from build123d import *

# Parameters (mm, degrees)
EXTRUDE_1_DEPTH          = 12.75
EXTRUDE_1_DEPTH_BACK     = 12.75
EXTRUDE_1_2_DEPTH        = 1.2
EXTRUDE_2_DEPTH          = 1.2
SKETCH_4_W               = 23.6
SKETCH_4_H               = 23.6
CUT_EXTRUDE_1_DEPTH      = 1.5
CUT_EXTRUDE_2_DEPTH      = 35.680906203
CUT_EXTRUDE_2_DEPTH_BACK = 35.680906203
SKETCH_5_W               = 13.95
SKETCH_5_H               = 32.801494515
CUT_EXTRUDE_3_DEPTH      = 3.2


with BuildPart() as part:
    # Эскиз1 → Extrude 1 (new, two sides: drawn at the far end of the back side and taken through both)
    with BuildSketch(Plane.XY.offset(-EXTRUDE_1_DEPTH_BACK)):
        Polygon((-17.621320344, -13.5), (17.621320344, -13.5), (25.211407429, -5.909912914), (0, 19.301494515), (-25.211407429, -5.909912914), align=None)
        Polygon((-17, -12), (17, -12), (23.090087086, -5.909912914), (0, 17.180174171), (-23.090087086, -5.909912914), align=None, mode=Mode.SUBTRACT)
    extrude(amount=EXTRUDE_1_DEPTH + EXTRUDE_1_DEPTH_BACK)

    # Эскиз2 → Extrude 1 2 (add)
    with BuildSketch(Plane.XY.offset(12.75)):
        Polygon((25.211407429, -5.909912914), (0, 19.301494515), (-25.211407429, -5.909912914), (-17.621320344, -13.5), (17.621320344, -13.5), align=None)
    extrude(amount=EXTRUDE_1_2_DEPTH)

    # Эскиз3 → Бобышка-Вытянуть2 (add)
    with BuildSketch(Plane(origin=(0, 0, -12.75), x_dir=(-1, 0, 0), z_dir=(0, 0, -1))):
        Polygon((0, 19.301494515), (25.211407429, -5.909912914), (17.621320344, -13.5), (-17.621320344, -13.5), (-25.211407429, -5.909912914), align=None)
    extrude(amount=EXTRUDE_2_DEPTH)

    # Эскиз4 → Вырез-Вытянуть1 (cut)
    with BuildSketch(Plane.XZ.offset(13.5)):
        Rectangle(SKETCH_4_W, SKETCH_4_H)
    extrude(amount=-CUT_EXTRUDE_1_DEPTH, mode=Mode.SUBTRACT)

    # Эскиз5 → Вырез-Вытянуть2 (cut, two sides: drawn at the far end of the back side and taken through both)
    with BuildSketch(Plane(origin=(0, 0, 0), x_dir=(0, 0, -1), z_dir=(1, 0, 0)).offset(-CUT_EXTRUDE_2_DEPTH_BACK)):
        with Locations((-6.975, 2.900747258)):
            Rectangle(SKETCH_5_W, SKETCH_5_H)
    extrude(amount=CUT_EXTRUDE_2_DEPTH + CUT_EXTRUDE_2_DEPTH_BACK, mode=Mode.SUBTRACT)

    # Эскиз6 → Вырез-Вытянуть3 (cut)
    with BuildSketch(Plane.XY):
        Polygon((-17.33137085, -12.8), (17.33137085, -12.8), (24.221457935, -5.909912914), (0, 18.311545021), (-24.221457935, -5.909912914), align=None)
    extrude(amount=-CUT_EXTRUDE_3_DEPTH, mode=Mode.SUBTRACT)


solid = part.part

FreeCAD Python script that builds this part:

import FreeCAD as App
import Part
import Sketcher

doc = App.newDocument("Part")
body = doc.addObject("PartDesign::Body", "Body")

# Sketch on XY plane
sketch1 = doc.addObject("Sketcher::SketchObject", "Sketch")
body.addObject(sketch1)
sketch1.AttachmentSupport = (doc.XY_Plane, [""])
sketch1.MapMode = "FlatFace"
sketch1.addGeometry(Part.LineSegment(App.Vector(-17.62132, -13.5, 0), App.Vector(17.62132, -13.5, 0)), False)
sketch1.addGeometry(Part.LineSegment(App.Vector(17.62132, -13.5, 0), App.Vector(25.211407, -5.909913, 0)), False)
sketch1.addGeometry(Part.LineSegment(App.Vector(25.211407, -5.909913, 0), App.Vector(0, 19.301495, 0)), False)
sketch1.addGeometry(Part.LineSegment(App.Vector(0, 19.301495, 0), App.Vector(-25.211407, -5.909913, 0)), False)
sketch1.addGeometry(Part.LineSegment(App.Vector(-25.211407, -5.909913, 0), App.Vector(-17.62132, -13.5, 0)), False)
sketch1.addGeometry(Part.LineSegment(App.Vector(17, -12, 0), App.Vector(-17, -12, 0)), False)
sketch1.addGeometry(Part.LineSegment(App.Vector(-17, -12, 0), App.Vector(-23.090087, -5.909913, 0)), False)
sketch1.addGeometry(Part.LineSegment(App.Vector(-23.090087, -5.909913, 0), App.Vector(0, 17.180174, 0)), False)
sketch1.addGeometry(Part.LineSegment(App.Vector(0, 17.180174, 0), App.Vector(23.090087, -5.909913, 0)), False)
sketch1.addGeometry(Part.LineSegment(App.Vector(23.090087, -5.909913, 0), App.Vector(17, -12, 0)), False)
sketch1.addConstraint(Sketcher.Constraint("Coincident", 0, 2, 1, 1))
sketch1.addConstraint(Sketcher.Constraint("Coincident", 1, 2, 2, 1))
sketch1.addConstraint(Sketcher.Constraint("Coincident", 2, 2, 3, 1))
sketch1.addConstraint(Sketcher.Constraint("Coincident", 3, 2, 4, 1))
sketch1.addConstraint(Sketcher.Constraint("Coincident", 4, 2, 0, 1))
sketch1.addConstraint(Sketcher.Constraint("Coincident", 5, 2, 6, 1))
sketch1.addConstraint(Sketcher.Constraint("Coincident", 6, 2, 7, 1))
sketch1.addConstraint(Sketcher.Constraint("Coincident", 7, 2, 8, 1))
sketch1.addConstraint(Sketcher.Constraint("Coincident", 8, 2, 9, 1))
sketch1.addConstraint(Sketcher.Constraint("Coincident", 9, 2, 5, 1))
sketch1.addConstraint(Sketcher.Constraint("Horizontal", 0))
sketch1.addConstraint(Sketcher.Constraint("Horizontal", 5))
sketch1.addConstraint(Sketcher.Constraint("Symmetric", 1, 2, 3, 2, -2))
sketch1.addConstraint(Sketcher.Constraint("Symmetric", 6, 2, 8, 2, -2))
sketch1.addConstraint(Sketcher.Constraint("PointOnObject", 2, 2, -2))
sketch1.addConstraint(Sketcher.Constraint("PointOnObject", 7, 2, -2))
sketch1.addConstraint(Sketcher.Constraint("Perpendicular", 1, 2))
sketch1.addConstraint(Sketcher.Constraint("Perpendicular", 2, 3))
sketch1.addConstraint(Sketcher.Constraint("Perpendicular", 3, 4))
sketch1.addConstraint(Sketcher.Constraint("Parallel", 4, 6))
sketch1.addConstraint(Sketcher.Constraint("Perpendicular", 6, 7))
sketch1.addConstraint(Sketcher.Constraint("Perpendicular", 8, 9))
sketch1.addConstraint(Sketcher.Constraint("Horizontal", 3, 2, 6, 2))
sketch1.addConstraint(Sketcher.Constraint("DistanceX", 5, 2, 5, 1, 34.0))
sketch1.addConstraint(Sketcher.Constraint("DistanceY", 5, 2, -1, 1, 12.0))
sketch1.addConstraint(Sketcher.Constraint("DistanceY", 0, 2, -1, 1, 13.5))
sketch1.addConstraint(Sketcher.Constraint("DistanceX", 0, 1, 0, 2, 35.242641))
sketch1.addConstraint(Sketcher.Constraint("Distance", 1, 10.734004))
pad1 = doc.addObject("PartDesign::Pad", "Pad")
body.addObject(pad1)
pad1.Profile = sketch1
pad1.Type = "TwoLengths"
pad1.Length = 12.75
pad1.Length2 = 12.75

# Sketch on XY plane
sketch2 = doc.addObject("Sketcher::SketchObject", "Sketch001")
body.addObject(sketch2)
sketch2.AttachmentSupport = (doc.XY_Plane, [""])
sketch2.MapMode = "FlatFace"
sketch2.AttachmentOffset = App.Placement(App.Vector(0, 0, 12.75), App.Rotation())
sketch2.addGeometry(Part.LineSegment(App.Vector(25.211407, -5.909913, 0), App.Vector(0, 19.301495, 0)), False)
sketch2.addGeometry(Part.LineSegment(App.Vector(0, 19.301495, 0), App.Vector(-25.211407, -5.909913, 0)), False)
sketch2.addGeometry(Part.LineSegment(App.Vector(-25.211407, -5.909913, 0), App.Vector(-17.62132, -13.5, 0)), False)
sketch2.addGeometry(Part.LineSegment(App.Vector(-17.62132, -13.5, 0), App.Vector(17.62132, -13.5, 0)), False)
sketch2.addGeometry(Part.LineSegment(App.Vector(17.62132, -13.5, 0), App.Vector(25.211407, -5.909913, 0)), False)
sketch2.addConstraint(Sketcher.Constraint("Coincident", 0, 2, 1, 1))
sketch2.addConstraint(Sketcher.Constraint("Coincident", 1, 2, 2, 1))
sketch2.addConstraint(Sketcher.Constraint("Coincident", 2, 2, 3, 1))
sketch2.addConstraint(Sketcher.Constraint("Coincident", 3, 2, 4, 1))
sketch2.addConstraint(Sketcher.Constraint("Coincident", 4, 2, 0, 1))
sketch2.addConstraint(Sketcher.Constraint("Horizontal", 3))
sketch2.addConstraint(Sketcher.Constraint("Symmetric", 1, 2, 4, 2, -2))
sketch2.addConstraint(Sketcher.Constraint("PointOnObject", 0, 2, -2))
sketch2.addConstraint(Sketcher.Constraint("Perpendicular", 0, 1))
sketch2.addConstraint(Sketcher.Constraint("Perpendicular", 1, 2))
sketch2.addConstraint(Sketcher.Constraint("Perpendicular", 2, 4))
sketch2.addConstraint(Sketcher.Constraint("DistanceY", 2, 2, -1, 1, 13.5))
sketch2.addConstraint(Sketcher.Constraint("DistanceX", 3, 1, 3, 2, 35.242641))
sketch2.addConstraint(Sketcher.Constraint("Distance", 0, 35.654314))
pad2 = doc.addObject("PartDesign::Pad", "Pad001")
body.addObject(pad2)
pad2.Profile = sketch2
pad2.Length = 1.2

# Sketch on XY plane
sketch3 = doc.addObject("Sketcher::SketchObject", "Sketch002")
body.addObject(sketch3)
sketch3.AttachmentSupport = (doc.XY_Plane, [""])
sketch3.MapMode = "FlatFace"
sketch3.AttachmentOffset = App.Placement(App.Vector(0, 0, -12.75), App.Rotation())
sketch3.addGeometry(Part.LineSegment(App.Vector(-25.211407, -5.909913, 0), App.Vector(0, 19.301495, 0)), False)
sketch3.addGeometry(Part.LineSegment(App.Vector(0, 19.301495, 0), App.Vector(25.211407, -5.909913, 0)), False)
sketch3.addGeometry(Part.LineSegment(App.Vector(25.211407, -5.909913, 0), App.Vector(17.62132, -13.5, 0)), False)
sketch3.addGeometry(Part.LineSegment(App.Vector(17.62132, -13.5, 0), App.Vector(-17.62132, -13.5, 0)), False)
sketch3.addGeometry(Part.LineSegment(App.Vector(-17.62132, -13.5, 0), App.Vector(-25.211407, -5.909913, 0)), False)
sketch3.addConstraint(Sketcher.Constraint("Coincident", 0, 2, 1, 1))
sketch3.addConstraint(Sketcher.Constraint("Coincident", 1, 2, 2, 1))
sketch3.addConstraint(Sketcher.Constraint("Coincident", 2, 2, 3, 1))
sketch3.addConstraint(Sketcher.Constraint("Coincident", 3, 2, 4, 1))
sketch3.addConstraint(Sketcher.Constraint("Coincident", 4, 2, 0, 1))
sketch3.addConstraint(Sketcher.Constraint("Horizontal", 3))
sketch3.addConstraint(Sketcher.Constraint("Symmetric", 1, 2, 4, 2, -2))
sketch3.addConstraint(Sketcher.Constraint("PointOnObject", 0, 2, -2))
sketch3.addConstraint(Sketcher.Constraint("Perpendicular", 0, 1))
sketch3.addConstraint(Sketcher.Constraint("Perpendicular", 1, 2))
sketch3.addConstraint(Sketcher.Constraint("Perpendicular", 2, 4))
sketch3.addConstraint(Sketcher.Constraint("DistanceY", 2, 2, -1, 1, 13.5))
sketch3.addConstraint(Sketcher.Constraint("DistanceX", 3, 2, 3, 1, 35.242641))
sketch3.addConstraint(Sketcher.Constraint("Distance", 0, 35.654314))
pad3 = doc.addObject("PartDesign::Pad", "Pad002")
body.addObject(pad3)
pad3.Profile = sketch3
pad3.Length = 1.2
pad3.Reversed = True

# Sketch on XZ plane
sketch4 = doc.addObject("Sketcher::SketchObject", "Sketch003")
body.addObject(sketch4)
sketch4.AttachmentSupport = (doc.XZ_Plane, [""])
sketch4.MapMode = "FlatFace"
sketch4.AttachmentOffset = App.Placement(App.Vector(0, 0, 13.5), App.Rotation())
sketch4.addGeometry(Part.LineSegment(App.Vector(-11.8, 11.8, 0), App.Vector(-11.8, -11.8, 0)), False)
sketch4.addGeometry(Part.LineSegment(App.Vector(-11.8, -11.8, 0), App.Vector(11.8, -11.8, 0)), False)
sketch4.addGeometry(Part.LineSegment(App.Vector(11.8, -11.8, 0), App.Vector(11.8, 11.8, 0)), False)
sketch4.addGeometry(Part.LineSegment(App.Vector(11.8, 11.8, 0), App.Vector(-11.8, 11.8, 0)), False)
sketch4.addConstraint(Sketcher.Constraint("Coincident", 0, 2, 1, 1))
sketch4.addConstraint(Sketcher.Constraint("Coincident", 1, 2, 2, 1))
sketch4.addConstraint(Sketcher.Constraint("Coincident", 2, 2, 3, 1))
sketch4.addConstraint(Sketcher.Constraint("Coincident", 3, 2, 0, 1))
sketch4.addConstraint(Sketcher.Constraint("Vertical", 0))
sketch4.addConstraint(Sketcher.Constraint("Horizontal", 1))
sketch4.addConstraint(Sketcher.Constraint("Vertical", 2))
sketch4.addConstraint(Sketcher.Constraint("Horizontal", 3))
sketch4.addConstraint(Sketcher.Constraint("Symmetric", 0, 2, 2, 2, -1, 1))
sketch4.addConstraint(Sketcher.Constraint("Equal", 3, 0))
sketch4.addConstraint(Sketcher.Constraint("DistanceX", 1, 1, 1, 2, 23.6))
pocket1 = doc.addObject("PartDesign::Pocket", "Pocket")
body.addObject(pocket1)
pocket1.Profile = sketch4
pocket1.Length = 1.5

# Sketch on YZ plane
sketch5 = doc.addObject("Sketcher::SketchObject", "Sketch004")
body.addObject(sketch5)
sketch5.AttachmentSupport = (doc.YZ_Plane, [""])
sketch5.MapMode = "FlatFace"
sketch5.addGeometry(Part.LineSegment(App.Vector(19.301495, 13.95, 0), App.Vector(-13.5, 13.95, 0)), False)
sketch5.addGeometry(Part.LineSegment(App.Vector(-13.5, 13.95, 0), App.Vector(-13.5, 0, 0)), False)
sketch5.addGeometry(Part.LineSegment(App.Vector(-13.5, 0, 0), App.Vector(19.301495, 0, 0)), False)
sketch5.addGeometry(Part.LineSegment(App.Vector(19.301495, 0, 0), App.Vector(19.301495, 13.95, 0)), False)
sketch5.addConstraint(Sketcher.Constraint("Coincident", 0, 2, 1, 1))
sketch5.addConstraint(Sketcher.Constraint("Coincident", 1, 2, 2, 1))
sketch5.addConstraint(Sketcher.Constraint("Coincident", 2, 2, 3, 1))
sketch5.addConstraint(Sketcher.Constraint("Coincident", 3, 2, 0, 1))
sketch5.addConstraint(Sketcher.Constraint("Horizontal", 0))
sketch5.addConstraint(Sketcher.Constraint("Vertical", 1))
sketch5.addConstraint(Sketcher.Constraint("Horizontal", 2))
sketch5.addConstraint(Sketcher.Constraint("Vertical", 3))
sketch5.addConstraint(Sketcher.Constraint("PointOnObject", 1, 2, -1))
sketch5.addConstraint(Sketcher.Constraint("DistanceY", 1, 2, 1, 1, 13.95))
sketch5.addConstraint(Sketcher.Constraint("DistanceX", 0, 2, -1, 1, 13.5))
sketch5.addConstraint(Sketcher.Constraint("DistanceX", 0, 2, 0, 1, 32.801495))
pocket2 = doc.addObject("PartDesign::Pocket", "Pocket001")
body.addObject(pocket2)
pocket2.Profile = sketch5
pocket2.Type = "ThroughAll"
pocket2.Midplane = True

# Sketch on XY plane
sketch6 = doc.addObject("Sketcher::SketchObject", "Sketch005")
body.addObject(sketch6)
sketch6.AttachmentSupport = (doc.XY_Plane, [""])
sketch6.MapMode = "FlatFace"
sketch6.addGeometry(Part.LineSegment(App.Vector(-17.331371, -12.8, 0), App.Vector(17.331371, -12.8, 0)), False)
sketch6.addGeometry(Part.LineSegment(App.Vector(17.331371, -12.8, 0), App.Vector(24.221458, -5.909913, 0)), False)
sketch6.addGeometry(Part.LineSegment(App.Vector(24.221458, -5.909913, 0), App.Vector(0, 18.311545, 0)), False)
sketch6.addGeometry(Part.LineSegment(App.Vector(0, 18.311545, 0), App.Vector(-24.221458, -5.909913, 0)), False)
sketch6.addGeometry(Part.LineSegment(App.Vector(-24.221458, -5.909913, 0), App.Vector(-17.331371, -12.8, 0)), False)
sketch6.addConstraint(Sketcher.Constraint("Coincident", 0, 2, 1, 1))
sketch6.addConstraint(Sketcher.Constraint("Coincident", 1, 2, 2, 1))
sketch6.addConstraint(Sketcher.Constraint("Coincident", 2, 2, 3, 1))
sketch6.addConstraint(Sketcher.Constraint("Coincident", 3, 2, 4, 1))
sketch6.addConstraint(Sketcher.Constraint("Coincident", 4, 2, 0, 1))
sketch6.addConstraint(Sketcher.Constraint("Horizontal", 0))
sketch6.addConstraint(Sketcher.Constraint("Symmetric", 1, 2, 3, 2, -2))
sketch6.addConstraint(Sketcher.Constraint("PointOnObject", 2, 2, -2))
sketch6.addConstraint(Sketcher.Constraint("Perpendicular", 1, 2))
sketch6.addConstraint(Sketcher.Constraint("Perpendicular", 2, 3))
sketch6.addConstraint(Sketcher.Constraint("Perpendicular", 3, 4))
sketch6.addConstraint(Sketcher.Constraint("DistanceY", 0, 2, -1, 1, 12.8))
sketch6.addConstraint(Sketcher.Constraint("DistanceX", 0, 1, 0, 2, 34.662742))
sketch6.addConstraint(Sketcher.Constraint("DistanceX", 3, 2, 0, 2, 41.552829))
pocket3 = doc.addObject("PartDesign::Pocket", "Pocket002")
body.addObject(pocket3)
pocket3.Profile = sketch6
pocket3.Length = 3.2

doc.recompute()
